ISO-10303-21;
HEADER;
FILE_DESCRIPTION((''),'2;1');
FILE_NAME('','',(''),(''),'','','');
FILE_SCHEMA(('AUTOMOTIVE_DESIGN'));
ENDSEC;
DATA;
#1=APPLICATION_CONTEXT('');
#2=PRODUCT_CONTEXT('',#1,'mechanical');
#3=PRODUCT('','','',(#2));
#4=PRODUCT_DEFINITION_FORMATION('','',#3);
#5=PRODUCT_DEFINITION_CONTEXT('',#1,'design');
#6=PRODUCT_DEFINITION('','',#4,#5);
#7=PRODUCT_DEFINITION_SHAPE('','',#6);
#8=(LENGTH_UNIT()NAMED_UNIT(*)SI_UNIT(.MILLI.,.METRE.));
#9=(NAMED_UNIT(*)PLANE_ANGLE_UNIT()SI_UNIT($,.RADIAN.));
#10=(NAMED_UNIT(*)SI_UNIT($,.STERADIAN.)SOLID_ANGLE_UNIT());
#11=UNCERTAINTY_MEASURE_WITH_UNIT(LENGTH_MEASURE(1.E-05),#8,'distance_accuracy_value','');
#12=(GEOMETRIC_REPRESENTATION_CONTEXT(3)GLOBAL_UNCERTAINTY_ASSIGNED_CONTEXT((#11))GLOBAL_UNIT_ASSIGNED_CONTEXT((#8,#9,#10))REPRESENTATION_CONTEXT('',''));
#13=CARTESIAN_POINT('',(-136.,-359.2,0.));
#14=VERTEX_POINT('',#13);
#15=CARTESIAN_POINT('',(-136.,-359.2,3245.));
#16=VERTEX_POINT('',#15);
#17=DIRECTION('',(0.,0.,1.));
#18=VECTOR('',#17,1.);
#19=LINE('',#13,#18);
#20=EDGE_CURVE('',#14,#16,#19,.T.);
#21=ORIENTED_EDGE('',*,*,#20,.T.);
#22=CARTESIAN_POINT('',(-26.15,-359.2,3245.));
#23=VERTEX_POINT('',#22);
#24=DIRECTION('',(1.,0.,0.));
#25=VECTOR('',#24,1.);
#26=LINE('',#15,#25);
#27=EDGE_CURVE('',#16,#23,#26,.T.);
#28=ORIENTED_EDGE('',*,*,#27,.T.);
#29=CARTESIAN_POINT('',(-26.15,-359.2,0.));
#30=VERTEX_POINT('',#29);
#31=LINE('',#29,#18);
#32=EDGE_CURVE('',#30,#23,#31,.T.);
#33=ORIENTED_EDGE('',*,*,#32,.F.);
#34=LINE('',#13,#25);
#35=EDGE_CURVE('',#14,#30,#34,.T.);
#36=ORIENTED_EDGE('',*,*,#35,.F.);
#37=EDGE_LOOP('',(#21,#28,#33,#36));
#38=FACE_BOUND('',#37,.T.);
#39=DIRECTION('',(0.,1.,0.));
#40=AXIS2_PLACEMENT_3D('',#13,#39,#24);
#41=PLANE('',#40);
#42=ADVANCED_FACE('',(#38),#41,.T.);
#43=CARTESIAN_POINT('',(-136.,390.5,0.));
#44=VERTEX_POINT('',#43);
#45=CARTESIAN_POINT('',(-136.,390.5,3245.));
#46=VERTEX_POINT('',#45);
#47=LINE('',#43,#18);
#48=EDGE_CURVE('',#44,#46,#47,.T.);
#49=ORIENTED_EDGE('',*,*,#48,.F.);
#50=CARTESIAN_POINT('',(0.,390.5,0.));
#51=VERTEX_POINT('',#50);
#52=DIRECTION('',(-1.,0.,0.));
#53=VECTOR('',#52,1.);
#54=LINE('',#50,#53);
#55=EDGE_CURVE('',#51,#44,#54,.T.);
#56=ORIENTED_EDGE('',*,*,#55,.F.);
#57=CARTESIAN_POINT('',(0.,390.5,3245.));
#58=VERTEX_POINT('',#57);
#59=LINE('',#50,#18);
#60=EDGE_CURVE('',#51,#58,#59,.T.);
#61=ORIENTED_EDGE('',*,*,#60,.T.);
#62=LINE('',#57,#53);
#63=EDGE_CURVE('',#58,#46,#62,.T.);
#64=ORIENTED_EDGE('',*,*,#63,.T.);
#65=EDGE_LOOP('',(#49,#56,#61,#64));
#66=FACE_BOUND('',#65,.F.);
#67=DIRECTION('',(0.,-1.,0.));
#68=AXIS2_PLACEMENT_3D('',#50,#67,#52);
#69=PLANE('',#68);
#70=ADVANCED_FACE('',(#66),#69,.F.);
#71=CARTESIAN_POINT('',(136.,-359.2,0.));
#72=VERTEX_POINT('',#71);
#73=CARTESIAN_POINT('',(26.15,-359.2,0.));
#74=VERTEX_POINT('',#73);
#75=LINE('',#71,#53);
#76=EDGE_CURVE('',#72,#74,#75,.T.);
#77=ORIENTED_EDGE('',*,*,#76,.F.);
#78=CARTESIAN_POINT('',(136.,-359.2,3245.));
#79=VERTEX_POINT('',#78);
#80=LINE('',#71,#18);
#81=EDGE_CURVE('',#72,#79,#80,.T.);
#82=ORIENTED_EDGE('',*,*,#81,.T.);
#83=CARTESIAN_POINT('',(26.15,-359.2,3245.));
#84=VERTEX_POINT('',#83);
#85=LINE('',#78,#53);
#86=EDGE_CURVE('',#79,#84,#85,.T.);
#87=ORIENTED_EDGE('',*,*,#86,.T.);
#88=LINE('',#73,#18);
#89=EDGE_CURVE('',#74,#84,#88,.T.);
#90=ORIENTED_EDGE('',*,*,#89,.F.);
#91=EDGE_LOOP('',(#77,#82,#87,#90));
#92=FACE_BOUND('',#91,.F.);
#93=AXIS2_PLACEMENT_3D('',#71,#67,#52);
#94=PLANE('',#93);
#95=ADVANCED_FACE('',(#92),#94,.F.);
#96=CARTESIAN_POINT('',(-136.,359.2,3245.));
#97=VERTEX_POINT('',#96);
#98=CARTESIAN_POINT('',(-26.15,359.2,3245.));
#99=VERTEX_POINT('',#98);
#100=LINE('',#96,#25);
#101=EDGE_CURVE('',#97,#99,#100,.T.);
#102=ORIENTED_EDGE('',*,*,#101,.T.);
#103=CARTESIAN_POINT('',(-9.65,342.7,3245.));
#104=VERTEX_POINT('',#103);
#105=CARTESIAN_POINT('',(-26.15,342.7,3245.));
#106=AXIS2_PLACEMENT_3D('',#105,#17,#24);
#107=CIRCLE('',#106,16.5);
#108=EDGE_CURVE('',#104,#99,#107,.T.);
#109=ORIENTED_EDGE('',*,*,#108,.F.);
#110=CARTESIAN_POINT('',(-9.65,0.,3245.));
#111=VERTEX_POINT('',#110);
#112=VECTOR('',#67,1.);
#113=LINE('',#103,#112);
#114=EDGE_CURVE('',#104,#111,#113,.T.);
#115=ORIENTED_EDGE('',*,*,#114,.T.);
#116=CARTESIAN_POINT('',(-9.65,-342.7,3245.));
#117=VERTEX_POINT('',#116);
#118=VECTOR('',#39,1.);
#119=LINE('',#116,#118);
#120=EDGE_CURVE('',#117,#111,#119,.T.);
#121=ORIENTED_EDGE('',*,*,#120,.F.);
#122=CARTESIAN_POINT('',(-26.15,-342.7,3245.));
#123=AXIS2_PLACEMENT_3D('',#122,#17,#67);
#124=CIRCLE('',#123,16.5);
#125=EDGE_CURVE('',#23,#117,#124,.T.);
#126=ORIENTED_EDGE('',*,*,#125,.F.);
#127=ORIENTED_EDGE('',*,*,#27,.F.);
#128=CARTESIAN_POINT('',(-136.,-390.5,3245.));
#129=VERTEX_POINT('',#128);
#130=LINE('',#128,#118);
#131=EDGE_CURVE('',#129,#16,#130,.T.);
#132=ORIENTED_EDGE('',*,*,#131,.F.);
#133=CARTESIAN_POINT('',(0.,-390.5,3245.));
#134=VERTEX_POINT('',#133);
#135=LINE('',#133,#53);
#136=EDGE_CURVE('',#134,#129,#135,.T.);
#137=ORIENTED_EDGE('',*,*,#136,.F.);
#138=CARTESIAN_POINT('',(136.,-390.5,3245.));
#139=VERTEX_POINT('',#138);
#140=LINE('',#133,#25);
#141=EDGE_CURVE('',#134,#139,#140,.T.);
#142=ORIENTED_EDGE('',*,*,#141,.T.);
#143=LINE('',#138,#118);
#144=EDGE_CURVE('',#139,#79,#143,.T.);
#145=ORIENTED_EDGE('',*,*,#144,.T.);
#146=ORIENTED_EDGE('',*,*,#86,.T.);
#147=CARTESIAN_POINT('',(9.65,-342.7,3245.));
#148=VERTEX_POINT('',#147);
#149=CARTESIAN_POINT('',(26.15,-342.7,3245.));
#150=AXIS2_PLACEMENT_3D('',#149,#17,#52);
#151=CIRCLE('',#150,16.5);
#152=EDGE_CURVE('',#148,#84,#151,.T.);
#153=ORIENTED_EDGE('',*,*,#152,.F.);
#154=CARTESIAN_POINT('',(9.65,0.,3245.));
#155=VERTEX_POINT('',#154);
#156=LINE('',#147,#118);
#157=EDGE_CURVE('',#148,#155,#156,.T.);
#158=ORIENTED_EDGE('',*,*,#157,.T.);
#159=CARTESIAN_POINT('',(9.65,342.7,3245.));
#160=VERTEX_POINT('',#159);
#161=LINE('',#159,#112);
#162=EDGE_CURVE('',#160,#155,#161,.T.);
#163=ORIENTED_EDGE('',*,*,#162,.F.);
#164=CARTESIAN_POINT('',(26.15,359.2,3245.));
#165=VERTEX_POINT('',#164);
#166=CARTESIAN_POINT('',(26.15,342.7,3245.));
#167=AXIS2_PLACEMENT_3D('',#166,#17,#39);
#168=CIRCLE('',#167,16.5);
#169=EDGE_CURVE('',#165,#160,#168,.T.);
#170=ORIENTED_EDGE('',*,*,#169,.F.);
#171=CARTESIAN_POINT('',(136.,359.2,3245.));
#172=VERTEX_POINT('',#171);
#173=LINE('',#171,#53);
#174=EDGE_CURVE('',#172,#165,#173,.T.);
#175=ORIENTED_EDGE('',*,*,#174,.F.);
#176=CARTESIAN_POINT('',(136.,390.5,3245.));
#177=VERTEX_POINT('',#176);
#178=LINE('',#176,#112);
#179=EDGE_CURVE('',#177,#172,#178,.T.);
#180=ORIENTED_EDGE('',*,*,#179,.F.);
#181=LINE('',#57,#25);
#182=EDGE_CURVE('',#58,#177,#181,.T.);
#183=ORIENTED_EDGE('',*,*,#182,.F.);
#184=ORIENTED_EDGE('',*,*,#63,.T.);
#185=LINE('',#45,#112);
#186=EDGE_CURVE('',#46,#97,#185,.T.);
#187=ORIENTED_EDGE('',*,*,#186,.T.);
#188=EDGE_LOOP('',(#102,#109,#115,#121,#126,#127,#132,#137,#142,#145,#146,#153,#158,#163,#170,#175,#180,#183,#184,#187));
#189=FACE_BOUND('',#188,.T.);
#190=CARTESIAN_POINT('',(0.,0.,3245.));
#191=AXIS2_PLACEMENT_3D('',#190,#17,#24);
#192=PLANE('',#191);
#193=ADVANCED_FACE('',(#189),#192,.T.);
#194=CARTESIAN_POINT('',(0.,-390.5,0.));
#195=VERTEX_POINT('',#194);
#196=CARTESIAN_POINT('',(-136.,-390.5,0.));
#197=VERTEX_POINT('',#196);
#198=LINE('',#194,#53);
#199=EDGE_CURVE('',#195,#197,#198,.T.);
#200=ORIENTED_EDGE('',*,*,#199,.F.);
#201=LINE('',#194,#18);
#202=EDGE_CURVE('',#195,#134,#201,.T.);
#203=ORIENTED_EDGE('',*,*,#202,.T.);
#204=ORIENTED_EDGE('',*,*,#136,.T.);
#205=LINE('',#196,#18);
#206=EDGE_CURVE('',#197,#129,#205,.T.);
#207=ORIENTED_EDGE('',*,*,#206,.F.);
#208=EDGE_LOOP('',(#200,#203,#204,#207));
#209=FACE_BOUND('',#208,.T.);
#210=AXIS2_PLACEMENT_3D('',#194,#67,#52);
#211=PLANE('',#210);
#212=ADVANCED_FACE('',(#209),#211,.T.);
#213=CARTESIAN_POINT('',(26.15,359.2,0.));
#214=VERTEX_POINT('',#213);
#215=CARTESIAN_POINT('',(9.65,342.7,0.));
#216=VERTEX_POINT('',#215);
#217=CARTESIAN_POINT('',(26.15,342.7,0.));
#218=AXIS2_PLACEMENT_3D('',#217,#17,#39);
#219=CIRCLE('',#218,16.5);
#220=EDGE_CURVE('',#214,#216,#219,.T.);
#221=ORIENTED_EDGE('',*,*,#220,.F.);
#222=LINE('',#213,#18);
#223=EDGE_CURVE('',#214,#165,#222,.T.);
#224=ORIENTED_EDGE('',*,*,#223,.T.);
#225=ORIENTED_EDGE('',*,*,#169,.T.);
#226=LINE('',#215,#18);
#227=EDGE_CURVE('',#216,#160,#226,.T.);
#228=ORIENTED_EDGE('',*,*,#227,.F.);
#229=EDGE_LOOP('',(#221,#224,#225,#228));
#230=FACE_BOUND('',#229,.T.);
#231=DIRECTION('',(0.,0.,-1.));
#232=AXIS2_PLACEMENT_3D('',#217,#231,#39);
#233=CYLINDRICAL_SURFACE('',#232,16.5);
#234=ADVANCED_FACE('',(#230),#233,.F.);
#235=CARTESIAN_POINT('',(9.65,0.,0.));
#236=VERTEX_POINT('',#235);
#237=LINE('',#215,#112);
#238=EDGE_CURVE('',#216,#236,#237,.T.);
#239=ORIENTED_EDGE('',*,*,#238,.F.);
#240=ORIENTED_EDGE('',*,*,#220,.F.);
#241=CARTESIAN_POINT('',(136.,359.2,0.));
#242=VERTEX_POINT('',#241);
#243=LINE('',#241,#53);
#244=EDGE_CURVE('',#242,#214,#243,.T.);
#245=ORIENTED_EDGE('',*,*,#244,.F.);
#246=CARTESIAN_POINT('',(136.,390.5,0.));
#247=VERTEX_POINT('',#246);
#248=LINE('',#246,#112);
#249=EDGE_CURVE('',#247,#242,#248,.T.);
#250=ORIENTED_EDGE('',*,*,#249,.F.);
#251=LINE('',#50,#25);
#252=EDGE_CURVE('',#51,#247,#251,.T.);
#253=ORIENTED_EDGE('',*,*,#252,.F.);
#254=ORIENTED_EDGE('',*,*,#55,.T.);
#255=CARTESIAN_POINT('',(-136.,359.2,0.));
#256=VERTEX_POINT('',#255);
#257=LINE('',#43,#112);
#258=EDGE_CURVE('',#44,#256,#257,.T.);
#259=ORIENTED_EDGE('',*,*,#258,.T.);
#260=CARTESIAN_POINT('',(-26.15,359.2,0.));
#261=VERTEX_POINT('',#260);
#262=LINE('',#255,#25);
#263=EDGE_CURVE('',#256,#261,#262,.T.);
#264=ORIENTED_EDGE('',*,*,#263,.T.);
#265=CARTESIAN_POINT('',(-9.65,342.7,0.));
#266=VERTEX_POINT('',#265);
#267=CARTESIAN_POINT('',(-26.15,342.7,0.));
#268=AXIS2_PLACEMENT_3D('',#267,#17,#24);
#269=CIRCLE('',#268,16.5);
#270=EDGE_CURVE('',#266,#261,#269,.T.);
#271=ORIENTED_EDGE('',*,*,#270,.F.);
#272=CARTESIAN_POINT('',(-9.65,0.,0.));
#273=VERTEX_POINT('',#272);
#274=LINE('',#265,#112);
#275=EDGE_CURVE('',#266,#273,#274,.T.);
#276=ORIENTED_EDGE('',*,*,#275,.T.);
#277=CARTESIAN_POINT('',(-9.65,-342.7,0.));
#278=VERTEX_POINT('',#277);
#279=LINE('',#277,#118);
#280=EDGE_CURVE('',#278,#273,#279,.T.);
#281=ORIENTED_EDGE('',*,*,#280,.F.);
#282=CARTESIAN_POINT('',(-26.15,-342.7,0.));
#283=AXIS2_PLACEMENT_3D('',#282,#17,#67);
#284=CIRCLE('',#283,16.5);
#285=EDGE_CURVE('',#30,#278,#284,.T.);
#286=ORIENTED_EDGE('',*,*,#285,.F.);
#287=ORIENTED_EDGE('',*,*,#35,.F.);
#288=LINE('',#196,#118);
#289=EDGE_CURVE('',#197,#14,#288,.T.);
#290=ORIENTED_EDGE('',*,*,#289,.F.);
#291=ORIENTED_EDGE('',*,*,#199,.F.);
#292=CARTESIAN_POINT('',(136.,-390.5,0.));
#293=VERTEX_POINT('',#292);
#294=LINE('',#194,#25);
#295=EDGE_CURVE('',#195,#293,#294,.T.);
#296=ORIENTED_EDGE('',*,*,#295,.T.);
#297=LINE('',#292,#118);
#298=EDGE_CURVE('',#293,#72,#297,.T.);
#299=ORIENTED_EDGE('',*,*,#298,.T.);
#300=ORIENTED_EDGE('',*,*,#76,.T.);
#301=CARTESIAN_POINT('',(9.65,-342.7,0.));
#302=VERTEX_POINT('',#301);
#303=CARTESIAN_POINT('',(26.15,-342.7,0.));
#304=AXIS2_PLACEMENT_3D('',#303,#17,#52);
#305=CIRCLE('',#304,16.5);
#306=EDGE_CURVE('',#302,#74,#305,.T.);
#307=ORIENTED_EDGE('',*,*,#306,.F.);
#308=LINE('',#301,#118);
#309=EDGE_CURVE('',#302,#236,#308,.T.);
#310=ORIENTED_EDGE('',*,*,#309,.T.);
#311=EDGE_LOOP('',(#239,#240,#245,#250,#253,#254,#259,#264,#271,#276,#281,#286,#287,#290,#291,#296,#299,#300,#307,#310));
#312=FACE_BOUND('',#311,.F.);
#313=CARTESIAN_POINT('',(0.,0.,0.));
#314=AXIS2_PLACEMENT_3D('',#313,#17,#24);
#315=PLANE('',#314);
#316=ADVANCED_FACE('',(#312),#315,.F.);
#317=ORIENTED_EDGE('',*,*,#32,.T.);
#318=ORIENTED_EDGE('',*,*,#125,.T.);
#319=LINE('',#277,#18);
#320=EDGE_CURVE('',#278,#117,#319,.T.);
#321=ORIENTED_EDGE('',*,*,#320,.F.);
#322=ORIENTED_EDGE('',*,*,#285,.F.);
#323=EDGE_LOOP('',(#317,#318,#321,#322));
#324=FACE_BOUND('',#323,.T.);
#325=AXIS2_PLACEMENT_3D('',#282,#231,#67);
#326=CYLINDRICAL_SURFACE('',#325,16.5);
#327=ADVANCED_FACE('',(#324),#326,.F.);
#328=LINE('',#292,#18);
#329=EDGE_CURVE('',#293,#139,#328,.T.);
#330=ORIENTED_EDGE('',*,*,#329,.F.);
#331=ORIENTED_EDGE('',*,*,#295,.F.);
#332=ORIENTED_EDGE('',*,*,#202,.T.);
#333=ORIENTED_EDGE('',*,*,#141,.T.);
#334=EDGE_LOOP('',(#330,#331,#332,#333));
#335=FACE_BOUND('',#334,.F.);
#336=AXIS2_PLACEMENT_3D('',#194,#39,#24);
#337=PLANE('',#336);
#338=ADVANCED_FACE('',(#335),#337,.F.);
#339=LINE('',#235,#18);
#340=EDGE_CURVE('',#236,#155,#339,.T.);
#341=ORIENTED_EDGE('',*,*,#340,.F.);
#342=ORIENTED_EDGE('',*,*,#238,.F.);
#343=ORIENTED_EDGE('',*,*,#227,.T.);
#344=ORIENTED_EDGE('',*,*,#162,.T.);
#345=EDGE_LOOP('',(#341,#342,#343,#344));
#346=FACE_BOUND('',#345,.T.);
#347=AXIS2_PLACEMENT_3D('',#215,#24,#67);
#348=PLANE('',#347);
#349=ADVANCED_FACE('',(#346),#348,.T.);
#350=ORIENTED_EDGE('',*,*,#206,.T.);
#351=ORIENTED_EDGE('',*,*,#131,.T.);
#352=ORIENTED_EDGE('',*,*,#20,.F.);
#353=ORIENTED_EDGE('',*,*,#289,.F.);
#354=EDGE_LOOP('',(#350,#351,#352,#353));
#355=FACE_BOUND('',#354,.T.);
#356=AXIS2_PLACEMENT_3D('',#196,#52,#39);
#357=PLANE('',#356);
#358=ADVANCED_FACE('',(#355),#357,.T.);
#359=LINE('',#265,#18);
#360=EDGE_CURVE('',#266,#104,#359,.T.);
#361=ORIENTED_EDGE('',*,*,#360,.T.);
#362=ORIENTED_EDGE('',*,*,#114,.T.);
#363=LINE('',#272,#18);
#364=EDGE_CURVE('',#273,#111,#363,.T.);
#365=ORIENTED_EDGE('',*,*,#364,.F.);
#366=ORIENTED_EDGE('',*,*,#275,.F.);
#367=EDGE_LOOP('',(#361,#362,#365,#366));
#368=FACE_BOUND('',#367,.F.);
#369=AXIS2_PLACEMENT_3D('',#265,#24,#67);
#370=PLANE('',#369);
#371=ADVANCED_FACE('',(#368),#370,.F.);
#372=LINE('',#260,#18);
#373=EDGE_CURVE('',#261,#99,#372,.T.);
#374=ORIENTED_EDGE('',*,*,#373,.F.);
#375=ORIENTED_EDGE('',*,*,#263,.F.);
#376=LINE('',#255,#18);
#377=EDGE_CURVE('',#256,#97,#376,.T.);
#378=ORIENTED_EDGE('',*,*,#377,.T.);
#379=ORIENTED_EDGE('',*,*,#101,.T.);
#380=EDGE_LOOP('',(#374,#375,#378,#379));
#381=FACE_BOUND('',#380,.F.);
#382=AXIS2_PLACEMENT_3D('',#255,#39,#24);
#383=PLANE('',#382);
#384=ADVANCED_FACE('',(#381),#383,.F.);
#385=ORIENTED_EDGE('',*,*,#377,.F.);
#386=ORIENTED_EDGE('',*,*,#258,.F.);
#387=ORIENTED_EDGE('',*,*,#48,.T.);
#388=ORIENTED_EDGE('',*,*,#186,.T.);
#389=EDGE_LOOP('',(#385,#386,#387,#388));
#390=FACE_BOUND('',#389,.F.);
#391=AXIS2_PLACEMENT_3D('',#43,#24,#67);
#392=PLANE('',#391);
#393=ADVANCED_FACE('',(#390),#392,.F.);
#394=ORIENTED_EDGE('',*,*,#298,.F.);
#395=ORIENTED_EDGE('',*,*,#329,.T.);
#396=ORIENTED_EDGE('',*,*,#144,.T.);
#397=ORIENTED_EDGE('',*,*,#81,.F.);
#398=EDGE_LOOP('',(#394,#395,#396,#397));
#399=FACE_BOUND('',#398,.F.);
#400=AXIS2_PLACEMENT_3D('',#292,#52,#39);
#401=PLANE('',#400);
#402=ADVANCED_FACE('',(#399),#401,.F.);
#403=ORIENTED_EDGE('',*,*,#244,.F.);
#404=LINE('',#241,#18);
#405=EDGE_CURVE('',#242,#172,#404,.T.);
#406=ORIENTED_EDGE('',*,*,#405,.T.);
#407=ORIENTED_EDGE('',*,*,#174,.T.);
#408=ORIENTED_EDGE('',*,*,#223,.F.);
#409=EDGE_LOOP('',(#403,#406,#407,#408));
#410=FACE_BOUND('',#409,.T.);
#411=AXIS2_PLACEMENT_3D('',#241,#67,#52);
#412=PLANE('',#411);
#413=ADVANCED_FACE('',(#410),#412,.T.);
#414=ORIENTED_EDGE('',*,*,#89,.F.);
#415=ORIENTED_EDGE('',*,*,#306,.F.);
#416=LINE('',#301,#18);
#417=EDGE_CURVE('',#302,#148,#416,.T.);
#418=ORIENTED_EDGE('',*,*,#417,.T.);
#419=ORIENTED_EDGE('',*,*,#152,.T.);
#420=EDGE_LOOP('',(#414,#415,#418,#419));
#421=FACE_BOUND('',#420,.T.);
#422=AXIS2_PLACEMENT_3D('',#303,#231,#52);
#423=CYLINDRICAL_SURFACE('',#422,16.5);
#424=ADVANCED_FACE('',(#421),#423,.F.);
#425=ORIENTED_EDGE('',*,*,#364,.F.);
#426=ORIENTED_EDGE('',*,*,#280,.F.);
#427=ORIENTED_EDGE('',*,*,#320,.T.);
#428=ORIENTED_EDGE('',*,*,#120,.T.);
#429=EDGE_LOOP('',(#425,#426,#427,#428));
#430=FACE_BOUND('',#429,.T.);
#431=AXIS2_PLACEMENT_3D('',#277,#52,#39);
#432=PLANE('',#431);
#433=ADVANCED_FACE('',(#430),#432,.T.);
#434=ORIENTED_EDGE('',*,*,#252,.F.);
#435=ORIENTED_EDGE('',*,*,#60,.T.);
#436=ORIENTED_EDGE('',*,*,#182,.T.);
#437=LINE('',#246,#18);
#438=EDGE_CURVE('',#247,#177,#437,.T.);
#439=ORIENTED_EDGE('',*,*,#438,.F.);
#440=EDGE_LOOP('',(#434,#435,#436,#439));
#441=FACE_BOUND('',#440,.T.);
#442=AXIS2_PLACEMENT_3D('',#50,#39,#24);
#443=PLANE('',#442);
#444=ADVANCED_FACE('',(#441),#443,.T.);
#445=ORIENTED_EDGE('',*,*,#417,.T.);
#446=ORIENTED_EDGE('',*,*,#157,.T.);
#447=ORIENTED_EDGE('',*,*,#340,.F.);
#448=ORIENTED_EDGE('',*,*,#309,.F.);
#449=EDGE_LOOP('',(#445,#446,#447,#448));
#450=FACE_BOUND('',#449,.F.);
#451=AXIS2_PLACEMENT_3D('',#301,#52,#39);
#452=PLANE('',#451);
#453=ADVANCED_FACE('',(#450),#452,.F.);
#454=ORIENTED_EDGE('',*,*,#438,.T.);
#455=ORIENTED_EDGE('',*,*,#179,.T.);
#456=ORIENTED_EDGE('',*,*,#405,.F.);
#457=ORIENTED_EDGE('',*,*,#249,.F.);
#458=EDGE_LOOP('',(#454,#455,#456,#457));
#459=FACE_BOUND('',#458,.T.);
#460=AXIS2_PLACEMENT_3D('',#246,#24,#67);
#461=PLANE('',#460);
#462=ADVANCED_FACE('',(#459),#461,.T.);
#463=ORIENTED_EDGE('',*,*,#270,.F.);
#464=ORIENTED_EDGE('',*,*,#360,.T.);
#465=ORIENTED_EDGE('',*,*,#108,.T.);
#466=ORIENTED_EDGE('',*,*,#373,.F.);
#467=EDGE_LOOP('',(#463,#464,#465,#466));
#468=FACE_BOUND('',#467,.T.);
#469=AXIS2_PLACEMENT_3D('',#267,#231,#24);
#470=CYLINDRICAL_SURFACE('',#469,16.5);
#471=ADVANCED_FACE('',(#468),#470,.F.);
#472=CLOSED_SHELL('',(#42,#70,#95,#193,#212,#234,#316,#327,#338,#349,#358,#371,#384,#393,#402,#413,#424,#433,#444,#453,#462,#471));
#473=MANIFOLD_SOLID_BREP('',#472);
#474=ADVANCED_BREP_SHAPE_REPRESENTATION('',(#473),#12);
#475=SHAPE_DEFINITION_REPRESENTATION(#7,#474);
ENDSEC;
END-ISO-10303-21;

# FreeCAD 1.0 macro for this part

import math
import FreeCAD as App
import Part
import Sketcher

doc = App.newDocument("Part")
body = doc.addObject("PartDesign::Body", "Body")

# Sketch on XY plane
sketch1 = doc.addObject("Sketcher::SketchObject", "Sketch")
body.addObject(sketch1)
sketch1.AttachmentSupport = (doc.XY_Plane, [""])
sketch1.MapMode = "FlatFace"
sketch1.addGeometry(Part.LineSegment(App.Vector(-136, -359, 0), App.Vector(-136, -390, 0)), False)
sketch1.addGeometry(Part.LineSegment(App.Vector(-136, -390, 0), App.Vector(136, -390, 0)), False)
sketch1.addGeometry(Part.LineSegment(App.Vector(136, -390, 0), App.Vector(136, -359, 0)), False)
sketch1.addGeometry(Part.LineSegment(App.Vector(136, -359, 0), App.Vector(26, -359, 0)), False)
sketch1.addGeometry(Part.ArcOfCircle(Part.Circle(App.Vector(26, -343, 0), App.Vector(0, 0, 1), 16), math.radians(180), math.radians(270)), False)
sketch1.addGeometry(Part.LineSegment(App.Vector(10, -343, 0), App.Vector(10, 343, 0)), False)
sketch1.addGeometry(Part.ArcOfCircle(Part.Circle(App.Vector(26, 343, 0), App.Vector(0, 0, 1), 16), math.radians(90), math.radians(180)), False)
sketch1.addGeometry(Part.LineSegment(App.Vector(26, 359, 0), App.Vector(136, 359, 0)), False)
sketch1.addGeometry(Part.LineSegment(App.Vector(136, 359, 0), App.Vector(136, 390, 0)), False)
sketch1.addGeometry(Part.LineSegment(App.Vector(136, 390, 0), App.Vector(-136, 390, 0)), False)
sketch1.addGeometry(Part.LineSegment(App.Vector(-136, 390, 0), App.Vector(-136, 359, 0)), False)
sketch1.addGeometry(Part.LineSegment(App.Vector(-136, 359, 0), App.Vector(-26, 359, 0)), False)
sketch1.addGeometry(Part.ArcOfCircle(Part.Circle(App.Vector(-26, 343, 0), App.Vector(0, 0, 1), 16), math.radians(0), math.radians(90)), False)
sketch1.addGeometry(Part.LineSegment(App.Vector(-10, 343, 0), App.Vector(-10, -343, 0)), False)
sketch1.addGeometry(Part.ArcOfCircle(Part.Circle(App.Vector(-26, -343, 0), App.Vector(0, 0, 1), 16), math.radians(-90), math.radians(0)), False)
sketch1.addGeometry(Part.LineSegment(App.Vector(-26, -359, 0), App.Vector(-136, -359, 0)), False)
sketch1.addConstraint(Sketcher.Constraint("Coincident", 0, 2, 1, 1))
sketch1.addConstraint(Sketcher.Constraint("Coincident", 1, 2, 2, 1))
sketch1.addConstraint(Sketcher.Constraint("Coincident", 2, 2, 3, 1))
sketch1.addConstraint(Sketcher.Constraint("Tangent", 3, 2, 4, 2))
sketch1.addConstraint(Sketcher.Constraint("Tangent", 4, 1, 5, 1))
sketch1.addConstraint(Sketcher.Constraint("Tangent", 5, 2, 6, 2))
sketch1.addConstraint(Sketcher.Constraint("Tangent", 6, 1, 7, 1))
sketch1.addConstraint(Sketcher.Constraint("Coincident", 7, 2, 8, 1))
sketch1.addConstraint(Sketcher.Constraint("Coincident", 8, 2, 9, 1))
sketch1.addConstraint(Sketcher.Constraint("Coincident", 9, 2, 10, 1))
sketch1.addConstraint(Sketcher.Constraint("Coincident", 10, 2, 11, 1))
sketch1.addConstraint(Sketcher.Constraint("Tangent", 11, 2, 12, 2))
sketch1.addConstraint(Sketcher.Constraint("Tangent", 12, 1, 13, 1))
sketch1.addConstraint(Sketcher.Constraint("Tangent", 13, 2, 14, 2))
sketch1.addConstraint(Sketcher.Constraint("Tangent", 14, 1, 15, 1))
sketch1.addConstraint(Sketcher.Constraint("Coincident", 15, 2, 0, 1))
sketch1.addConstraint(Sketcher.Constraint("Vertical", 0))
sketch1.addConstraint(Sketcher.Constraint("Horizontal", 1))
sketch1.addConstraint(Sketcher.Constraint("Vertical", 2))
sketch1.addConstraint(Sketcher.Constraint("Horizontal", 3))
sketch1.addConstraint(Sketcher.Constraint("Vertical", 5))
sketch1.addConstraint(Sketcher.Constraint("Horizontal", 7))
sketch1.addConstraint(Sketcher.Constraint("Vertical", 8))
sketch1.addConstraint(Sketcher.Constraint("Horizontal", 9))
sketch1.addConstraint(Sketcher.Constraint("Vertical", 10))
sketch1.addConstraint(Sketcher.Constraint("Horizontal", 11))
sketch1.addConstraint(Sketcher.Constraint("Vertical", 13))
sketch1.addConstraint(Sketcher.Constraint("Horizontal", 15))
sketch1.addConstraint(Sketcher.Constraint("Equal", 4, 6))
sketch1.addConstraint(Sketcher.Constraint("Equal", 6, 12))
sketch1.addConstraint(Sketcher.Constraint("Equal", 12, 14))
sketch1.addConstraint(Sketcher.Constraint("Symmetric", 4, 3, 12, 3, -1, 1))
sketch1.addConstraint(Sketcher.Constraint("Symmetric", 0, 2, 8, 2, -1, 1))
sketch1.addConstraint(Sketcher.Constraint("Symmetric", 7, 2, 10, 2, -2))
sketch1.addConstraint(Sketcher.Constraint("Symmetric", 2, 2, 15, 2, -2))
sketch1.addConstraint(Sketcher.Constraint("Radius", 4, 16.5))
sketch1.addConstraint(Sketcher.Constraint("DistanceY", 0, 2, 0, 1, 31.3))
sketch1.addConstraint(Sketcher.Constraint("DistanceX", 0, 2, -1, 1, 136.0))
sketch1.addConstraint(Sketcher.Constraint("DistanceY", 0, 2, -1, 1, 390.5))
sketch1.addConstraint(Sketcher.Constraint("DistanceX", -1, 1, 4, 1, 9.65))
pad1 = doc.addObject("PartDesign::Pad", "Pad")
body.addObject(pad1)
pad1.Profile = sketch1
pad1.Length = 3245

doc.recompute()
